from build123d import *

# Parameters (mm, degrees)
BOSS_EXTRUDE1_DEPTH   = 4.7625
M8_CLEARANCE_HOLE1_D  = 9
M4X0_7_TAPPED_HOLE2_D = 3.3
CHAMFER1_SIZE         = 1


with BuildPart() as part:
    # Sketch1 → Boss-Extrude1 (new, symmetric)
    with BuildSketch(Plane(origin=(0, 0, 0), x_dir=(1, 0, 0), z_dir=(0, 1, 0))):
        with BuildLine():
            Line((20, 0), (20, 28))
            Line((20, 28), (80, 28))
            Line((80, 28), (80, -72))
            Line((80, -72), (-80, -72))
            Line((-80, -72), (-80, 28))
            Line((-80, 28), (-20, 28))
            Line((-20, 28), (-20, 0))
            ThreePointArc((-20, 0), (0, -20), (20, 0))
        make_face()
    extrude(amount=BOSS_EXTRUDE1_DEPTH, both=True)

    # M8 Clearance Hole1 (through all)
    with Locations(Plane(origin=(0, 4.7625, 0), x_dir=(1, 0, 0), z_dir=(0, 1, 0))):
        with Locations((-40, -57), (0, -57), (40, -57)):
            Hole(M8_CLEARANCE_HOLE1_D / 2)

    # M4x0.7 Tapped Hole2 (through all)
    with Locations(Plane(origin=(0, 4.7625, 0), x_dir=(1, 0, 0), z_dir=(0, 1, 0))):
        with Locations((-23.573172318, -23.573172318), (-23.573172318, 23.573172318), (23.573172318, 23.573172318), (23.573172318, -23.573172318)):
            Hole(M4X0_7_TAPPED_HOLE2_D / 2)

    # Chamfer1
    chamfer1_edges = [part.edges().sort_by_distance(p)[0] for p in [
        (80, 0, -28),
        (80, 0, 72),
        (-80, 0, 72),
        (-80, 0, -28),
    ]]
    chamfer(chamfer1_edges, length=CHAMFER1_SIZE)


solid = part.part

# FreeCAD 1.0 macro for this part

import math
import FreeCAD as App
import Part
import Sketcher


def edges_at(feature, points):
    """Names of the edges that pass closest to the given points."""
    edges = feature.Shape.Edges
    near = lambda p: min(range(len(edges)), key=lambda i: edges[i].distToShape(Part.Vertex(*p))[0])
    return sorted({f"Edge{near(p) + 1}" for p in points})

doc = App.newDocument("Part")
body = doc.addObject("PartDesign::Body", "Body")

sketch1 = body.newObject("Sketcher::SketchObject", "Sketch")
sketch1.AttachmentSupport = (doc.getObject("XZ_Plane"), [""])
sketch1.MapMode = "FlatFace"
sketch1.addGeometry([
    Part.LineSegment(App.Vector(20, -28, 0), App.Vector(20, 0, 0)),
    Part.ArcOfCircle(Part.Circle(App.Vector(0, 0, 0), App.Vector(0, 0, 1), 20), math.radians(0), math.radians(180)),
    Part.LineSegment(App.Vector(-20, 0, 0), App.Vector(-20, -28, 0)),
    Part.LineSegment(App.Vector(-20, -28, 0), App.Vector(-80, -28, 0)),
    Part.LineSegment(App.Vector(-80, -28, 0), App.Vector(-80, 72, 0)),
    Part.LineSegment(App.Vector(-80, 72, 0), App.Vector(80, 72, 0)),
    Part.LineSegment(App.Vector(80, 72, 0), App.Vector(80, -28, 0)),
    Part.LineSegment(App.Vector(80, -28, 0), App.Vector(20, -28, 0)),
], False)
sketch1.addConstraint([
    Sketcher.Constraint("Tangent", 0, 2, 1, 1),
    Sketcher.Constraint("Tangent", 1, 2, 2, 1),
    Sketcher.Constraint("Coincident", 2, 2, 3, 1),
    Sketcher.Constraint("Coincident", 3, 2, 4, 1),
    Sketcher.Constraint("Coincident", 4, 2, 5, 1),
    Sketcher.Constraint("Coincident", 5, 2, 6, 1),
    Sketcher.Constraint("Coincident", 6, 2, 7, 1),
    Sketcher.Constraint("Coincident", 7, 2, 0, 1),
    Sketcher.Constraint("Vertical", 0),
    Sketcher.Constraint("Vertical", 2),
    Sketcher.Constraint("Horizontal", 3),
    Sketcher.Constraint("Vertical", 4),
    Sketcher.Constraint("Horizontal", 5),
    Sketcher.Constraint("Vertical", 6),
    Sketcher.Constraint("Horizontal", 7),
    Sketcher.Constraint("Coincident", 1, 3, -1, 1),
    Sketcher.Constraint("Symmetric", 3, 2, 6, 2, -2),
    Sketcher.Constraint("Radius", 1, 20.0),
    Sketcher.Constraint("DistanceX", 3, 2, 3, 1, 60.0),
    Sketcher.Constraint("DistanceY", 0, 1, 0, 2, 28.0),
    Sketcher.Constraint("DistanceY", 4, 1, 4, 2, 100.0),
])
pad1 = body.newObject("PartDesign::Pad", "Pad")
pad1.Profile = sketch1
pad1.Length = 9.525
pad1.Midplane = True

sketch2 = body.newObject("Sketcher::SketchObject", "Sketch001")
sketch2.AttachmentSupport = (doc.getObject("XZ_Plane"), [""])
sketch2.MapMode = "FlatFace"
sketch2.AttachmentOffset = App.Placement(App.Vector(0, 0, -4.7625), App.Rotation())
sketch2.addGeometry([
    Part.Circle(App.Vector(-40, 57, 0), App.Vector(0, 0, 1), 4.5),
    Part.Circle(App.Vector(0, 57, 0), App.Vector(0, 0, 1), 4.5),
    Part.Circle(App.Vector(40, 57, 0), App.Vector(0, 0, 1), 4.5),
], False)
sketch2.addConstraint([
    Sketcher.Constraint("Equal", 0, 1),
    Sketcher.Constraint("Equal", 1, 2),
    Sketcher.Constraint("Symmetric", 0, 3, 2, 3, -2),
    Sketcher.Constraint("PointOnObject", 1, 3, -2),
    Sketcher.Constraint("Horizontal", 0, 3, 1, 3),
    Sketcher.Constraint("Diameter", 0, 9.0),
    Sketcher.Constraint("DistanceX", 0, 3, -1, 1, 40.0),
    Sketcher.Constraint("DistanceY", -1, 1, 0, 3, 57.0),
])
doc.recompute()
hole = body.newObject("PartDesign::Hole", "Hole")
hole.Profile = sketch2
hole.ThreadType = "None"
hole.Diameter = 9
hole.DepthType = "ThroughAll"
hole.Reversed = True

sketch3 = body.newObject("Sketcher::SketchObject", "Sketch002")
sketch3.AttachmentSupport = (doc.getObject("XZ_Plane"), [""])
sketch3.MapMode = "FlatFace"
sketch3.AttachmentOffset = App.Placement(App.Vector(0, 0, -4.7625), App.Rotation())
sketch3.addGeometry([
    Part.Circle(App.Vector(-23.6, 23.6, 0), App.Vector(0, 0, 1), 1.6),
    Part.Circle(App.Vector(-23.6, -23.6, 0), App.Vector(0, 0, 1), 1.6),
    Part.Circle(App.Vector(23.6, -23.6, 0), App.Vector(0, 0, 1), 1.6),
    Part.Circle(App.Vector(23.6, 23.6, 0), App.Vector(0, 0, 1), 1.6),
], False)
sketch3.addConstraint([
    Sketcher.Constraint("Equal", 0, 1),
    Sketcher.Constraint("Equal", 1, 2),
    Sketcher.Constraint("Equal", 2, 3),
    Sketcher.Constraint("Symmetric", 0, 3, 2, 3, -1, 1),
    Sketcher.Constraint("Symmetric", 1, 3, 3, 3, -1, 1),
    Sketcher.Constraint("Symmetric", 1, 3, 2, 3, -2),
    Sketcher.Constraint("Diameter", 0, 3.3),
    Sketcher.Constraint("DistanceX", 0, 3, -1, 1, 23.573172),
    Sketcher.Constraint("DistanceY", -1, 1, 0, 3, 23.573172),
])
doc.recompute()
hole2 = body.newObject("PartDesign::Hole", "Hole001")
hole2.Profile = sketch3
hole2.ThreadType = "None"
hole2.Diameter = 3.3
hole2.DepthType = "ThroughAll"
hole2.Reversed = True
doc.recompute()

chamfer = body.newObject("PartDesign::Chamfer", "Chamfer")
chamfer.Base = (hole2, edges_at(hole2, [
    (80, 0, -28),
    (80, 0, 72),
    (-80, 0, 72),
    (-80, 0, -28),
]))
chamfer.Size = 1

doc.recompute()
